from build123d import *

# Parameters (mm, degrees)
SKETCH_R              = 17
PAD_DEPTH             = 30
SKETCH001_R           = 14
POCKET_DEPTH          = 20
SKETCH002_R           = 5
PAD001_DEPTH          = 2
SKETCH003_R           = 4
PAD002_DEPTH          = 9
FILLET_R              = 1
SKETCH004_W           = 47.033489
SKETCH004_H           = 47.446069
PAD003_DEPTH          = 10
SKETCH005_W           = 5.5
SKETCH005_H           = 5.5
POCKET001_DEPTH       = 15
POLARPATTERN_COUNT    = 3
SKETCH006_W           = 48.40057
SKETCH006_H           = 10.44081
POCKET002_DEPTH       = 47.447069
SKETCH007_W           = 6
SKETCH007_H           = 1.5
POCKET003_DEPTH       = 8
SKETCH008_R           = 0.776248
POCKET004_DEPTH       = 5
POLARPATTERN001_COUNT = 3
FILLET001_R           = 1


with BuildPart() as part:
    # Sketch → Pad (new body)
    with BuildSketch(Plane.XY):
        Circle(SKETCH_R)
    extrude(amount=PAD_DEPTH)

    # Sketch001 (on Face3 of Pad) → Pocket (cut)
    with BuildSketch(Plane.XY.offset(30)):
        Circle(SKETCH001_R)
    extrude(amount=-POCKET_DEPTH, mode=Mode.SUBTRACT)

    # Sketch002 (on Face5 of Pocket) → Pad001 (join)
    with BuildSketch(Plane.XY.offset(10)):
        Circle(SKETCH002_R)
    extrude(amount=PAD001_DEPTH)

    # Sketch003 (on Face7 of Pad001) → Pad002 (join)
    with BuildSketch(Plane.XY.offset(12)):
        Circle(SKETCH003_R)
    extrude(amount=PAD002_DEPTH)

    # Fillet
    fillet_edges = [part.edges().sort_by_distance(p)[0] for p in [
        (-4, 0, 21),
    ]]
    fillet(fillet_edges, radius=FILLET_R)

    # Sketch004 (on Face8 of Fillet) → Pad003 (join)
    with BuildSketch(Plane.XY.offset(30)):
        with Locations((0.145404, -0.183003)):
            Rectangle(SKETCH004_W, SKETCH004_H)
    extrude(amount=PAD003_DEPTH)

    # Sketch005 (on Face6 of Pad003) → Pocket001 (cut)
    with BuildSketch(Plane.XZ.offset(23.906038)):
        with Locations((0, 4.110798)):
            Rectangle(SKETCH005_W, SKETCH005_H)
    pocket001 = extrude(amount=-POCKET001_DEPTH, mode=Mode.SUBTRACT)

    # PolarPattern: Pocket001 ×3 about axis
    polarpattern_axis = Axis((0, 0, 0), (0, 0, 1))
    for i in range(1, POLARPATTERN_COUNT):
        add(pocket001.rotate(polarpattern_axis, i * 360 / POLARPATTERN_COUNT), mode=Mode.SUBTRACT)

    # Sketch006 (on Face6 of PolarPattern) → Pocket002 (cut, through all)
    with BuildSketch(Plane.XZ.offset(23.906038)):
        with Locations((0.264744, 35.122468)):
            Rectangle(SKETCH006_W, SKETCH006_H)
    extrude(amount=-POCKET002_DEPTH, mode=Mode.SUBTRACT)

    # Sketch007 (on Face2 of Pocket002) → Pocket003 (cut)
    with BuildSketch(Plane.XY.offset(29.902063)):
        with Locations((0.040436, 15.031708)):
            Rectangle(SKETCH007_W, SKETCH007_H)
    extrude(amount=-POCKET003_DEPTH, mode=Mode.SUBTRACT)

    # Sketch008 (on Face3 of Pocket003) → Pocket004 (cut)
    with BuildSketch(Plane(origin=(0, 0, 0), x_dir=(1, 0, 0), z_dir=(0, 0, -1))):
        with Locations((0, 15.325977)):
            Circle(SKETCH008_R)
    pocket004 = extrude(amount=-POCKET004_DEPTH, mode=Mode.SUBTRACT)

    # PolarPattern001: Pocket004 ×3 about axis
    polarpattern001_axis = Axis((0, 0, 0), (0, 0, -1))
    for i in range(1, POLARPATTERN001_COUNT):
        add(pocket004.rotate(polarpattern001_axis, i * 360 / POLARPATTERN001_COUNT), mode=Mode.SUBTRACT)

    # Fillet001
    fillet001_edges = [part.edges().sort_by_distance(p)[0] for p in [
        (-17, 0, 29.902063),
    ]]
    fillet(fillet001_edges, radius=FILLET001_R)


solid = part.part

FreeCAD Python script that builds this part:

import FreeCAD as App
import Part
import Sketcher
Q = App.Units.Quantity


def edges_at(feature, points):
    """Names of the edges that pass closest to the given points."""
    edges = feature.Shape.Edges
    near = lambda p: min(range(len(edges)), key=lambda i: edges[i].distToShape(Part.Vertex(*p))[0])
    return sorted({f"Edge{near(p) + 1}" for p in points})

doc = App.newDocument("Part")
params = doc.addObject("Spreadsheet::Sheet", "Params")
for row, (alias, value) in enumerate([
    ("sketch1_diameter", "34 mm"),
    ("pad1_length", "30 mm"),
    ("sketch2_diameter", "28 mm"),
    ("pocket1_length", "20 mm"),
    ("sketch3_diameter", "10 mm"),
    ("pad2_length", "2 mm"),
    ("sketch4_diameter", "8 mm"),
    ("pad3_length", "9 mm"),
    ("fillet_radius", "1 mm"),
    ("pad4_length", "10 mm"),
    ("sketch6_width", "5.5 mm"),
    ("pocket2_length", "15 mm"),
    ("sketch8_width", "6 mm"),
    ("sketch8_height", "1.5 mm"),
    ("pocket4_length", "8 mm"),
    ("pocket5_length", "5 mm"),
    ("fillet2_radius", "1 mm"),
], start=1):
    params.set(f"A{row}", alias)
    params.set(f"B{row}", "=" + value)
    params.setAlias(f"B{row}", alias)

body = doc.addObject("PartDesign::Body", "Body")

# Sketch on XY plane
sketch1 = body.newObject("Sketcher::SketchObject", "Sketch")
sketch1.AttachmentSupport = (doc.getObject("XY_Plane"), [""])
sketch1.MapMode = "FlatFace"
sketch1.addGeometry(Part.Circle(App.Vector(0, 0, 0), App.Vector(0, 0, 1), 17), False)
sketch1.addConstraint([
    Sketcher.Constraint("Coincident", 0, 3, -1, 1),
    Sketcher.Constraint("Diameter", 0, Q("34 mm")),
])
sketch1.setExpression("Constraints[1]", "Params.sketch1_diameter")
pad1 = body.newObject("PartDesign::Pad", "Pad")
pad1.Profile = sketch1
pad1.setExpression("Length", "Params.pad1_length")

# Sketch on XY plane
sketch2 = body.newObject("Sketcher::SketchObject", "Sketch001")
sketch2.AttachmentSupport = (doc.getObject("XY_Plane"), [""])
sketch2.MapMode = "FlatFace"
sketch2.AttachmentOffset = App.Placement(App.Vector(0, 0, 30), App.Rotation())
sketch2.addGeometry(Part.Circle(App.Vector(0, 0, 0), App.Vector(0, 0, 1), 14), False)
sketch2.addConstraint([
    Sketcher.Constraint("Coincident", 0, 3, -1, 1),
    Sketcher.Constraint("Diameter", 0, Q("28 mm")),
])
sketch2.setExpression("Constraints[1]", "Params.sketch2_diameter")
pocket1 = body.newObject("PartDesign::Pocket", "Pocket")
pocket1.Profile = sketch2
pocket1.setExpression("Length", "Params.pocket1_length")

# Sketch on XY plane
sketch3 = body.newObject("Sketcher::SketchObject", "Sketch002")
sketch3.AttachmentSupport = (doc.getObject("XY_Plane"), [""])
sketch3.MapMode = "FlatFace"
sketch3.AttachmentOffset = App.Placement(App.Vector(0, 0, 10), App.Rotation())
sketch3.addGeometry(Part.Circle(App.Vector(0, 0, 0), App.Vector(0, 0, 1), 5), False)
sketch3.addConstraint([
    Sketcher.Constraint("Coincident", 0, 3, -1, 1),
    Sketcher.Constraint("Diameter", 0, Q("10 mm")),
])
sketch3.setExpression("Constraints[1]", "Params.sketch3_diameter")
pad2 = body.newObject("PartDesign::Pad", "Pad001")
pad2.Profile = sketch3
pad2.setExpression("Length", "Params.pad2_length")

# Sketch on XY plane
sketch4 = body.newObject("Sketcher::SketchObject", "Sketch003")
sketch4.AttachmentSupport = (doc.getObject("XY_Plane"), [""])
sketch4.MapMode = "FlatFace"
sketch4.AttachmentOffset = App.Placement(App.Vector(0, 0, 12), App.Rotation())
sketch4.addGeometry(Part.Circle(App.Vector(0, 0, 0), App.Vector(0, 0, 1), 4), False)
sketch4.addConstraint([
    Sketcher.Constraint("Coincident", 0, 3, -1, 1),
    Sketcher.Constraint("Diameter", 0, Q("8 mm")),
])
sketch4.setExpression("Constraints[1]", "Params.sketch4_diameter")
pad3 = body.newObject("PartDesign::Pad", "Pad002")
pad3.Profile = sketch4
pad3.setExpression("Length", "Params.pad3_length")
doc.recompute()

fillet = body.newObject("PartDesign::Fillet", "Fillet")
fillet.Base = (pad3, edges_at(pad3, [(-4, 0, 21)]))
fillet.setExpression("Radius", "Params.fillet_radius")

# Sketch on XY plane
sketch5 = body.newObject("Sketcher::SketchObject", "Sketch004")
sketch5.AttachmentSupport = (doc.getObject("XY_Plane"), [""])
sketch5.MapMode = "FlatFace"
sketch5.AttachmentOffset = App.Placement(App.Vector(0, 0, 30), App.Rotation())
sketch5.addGeometry([
    Part.LineSegment(App.Vector(-23.37134, 23.540032, 0), App.Vector(-23.37134, -23.906038, 0)),
    Part.LineSegment(App.Vector(-23.37134, -23.906038, 0), App.Vector(23.662149, -23.906038, 0)),
    Part.LineSegment(App.Vector(23.662149, -23.906038, 0), App.Vector(23.662149, 23.540032, 0)),
    Part.LineSegment(App.Vector(23.662149, 23.540032, 0), App.Vector(-23.37134, 23.540032, 0)),
], False)
sketch5.addConstraint([
    Sketcher.Constraint("Coincident", 0, 2, 1, 1),
    Sketcher.Constraint("Coincident", 1, 2, 2, 1),
    Sketcher.Constraint("Coincident", 2, 2, 3, 1),
    Sketcher.Constraint("Coincident", 3, 2, 0, 1),
    Sketcher.Constraint("Vertical", 0),
    Sketcher.Constraint("Horizontal", 1),
    Sketcher.Constraint("Vertical", 2),
    Sketcher.Constraint("Horizontal", 3),
    Sketcher.Constraint("DistanceX", 1, 1, 1, 2, Q("47.033489 mm")),
    Sketcher.Constraint("DistanceY", 0, 2, 0, 1, Q("47.446069 mm")),
    Sketcher.Constraint("DistanceX", 0, 2, -1, 1, Q("23.37134 mm")),
    Sketcher.Constraint("DistanceY", -1, 1, 2, 2, Q("23.540032 mm")),
])
pad4 = body.newObject("PartDesign::Pad", "Pad003")
pad4.Profile = sketch5
pad4.setExpression("Length", "Params.pad4_length")

# Sketch on XZ plane
sketch6 = body.newObject("Sketcher::SketchObject", "Sketch005")
sketch6.AttachmentSupport = (doc.getObject("XZ_Plane"), [""])
sketch6.MapMode = "FlatFace"
sketch6.AttachmentOffset = App.Placement(App.Vector(0, 0, 23.906038), App.Rotation())
sketch6.addGeometry([
    Part.LineSegment(App.Vector(-2.75, 6.860798, 0), App.Vector(-2.75, 1.360798, 0)),
    Part.LineSegment(App.Vector(-2.75, 1.360798, 0), App.Vector(2.75, 1.360798, 0)),
    Part.LineSegment(App.Vector(2.75, 1.360798, 0), App.Vector(2.75, 6.860798, 0)),
    Part.LineSegment(App.Vector(2.75, 6.860798, 0), App.Vector(-2.75, 6.860798, 0)),
], False)
sketch6.addConstraint([
    Sketcher.Constraint("Coincident", 0, 2, 1, 1),
    Sketcher.Constraint("Coincident", 1, 2, 2, 1),
    Sketcher.Constraint("Coincident", 2, 2, 3, 1),
    Sketcher.Constraint("Coincident", 3, 2, 0, 1),
    Sketcher.Constraint("Vertical", 0),
    Sketcher.Constraint("Horizontal", 1),
    Sketcher.Constraint("Vertical", 2),
    Sketcher.Constraint("Horizontal", 3),
    Sketcher.Constraint("Equal", 3, 0),
    Sketcher.Constraint("DistanceX", 1, 1, 1, 2, Q("5.5 mm")),
    Sketcher.Constraint("DistanceX", 0, 2, -1, 1, Q("2.75 mm")),
    Sketcher.Constraint("DistanceY", -1, 1, 0, 2, Q("1.360798 mm")),
])
sketch6.setExpression("Constraints[9]", "Params.sketch6_width")
pocket2 = body.newObject("PartDesign::Pocket", "Pocket001")
pocket2.Profile = sketch6
pocket2.setExpression("Length", "Params.pocket2_length")
doc.recompute()

polarpattern = body.newObject("PartDesign::PolarPattern", "PolarPattern")
polarpattern.Originals = [pocket2]
polarpattern.Axis = (doc.getObject("Z_Axis"), [""])
polarpattern.Angle = 360
polarpattern.Occurrences = 3
body.Tip = polarpattern

# Sketch on XZ plane
sketch7 = body.newObject("Sketcher::SketchObject", "Sketch006")
sketch7.AttachmentSupport = (doc.getObject("XZ_Plane"), [""])
sketch7.MapMode = "FlatFace"
sketch7.AttachmentOffset = App.Placement(App.Vector(0, 0, 23.906038), App.Rotation())
sketch7.addGeometry([
    Part.LineSegment(App.Vector(-23.935541, 40.342873, 0), App.Vector(-23.935541, 29.902063, 0)),
    Part.LineSegment(App.Vector(-23.935541, 29.902063, 0), App.Vector(24.465029, 29.902063, 0)),
    Part.LineSegment(App.Vector(24.465029, 29.902063, 0), App.Vector(24.465029, 40.342873, 0)),
    Part.LineSegment(App.Vector(24.465029, 40.342873, 0), App.Vector(-23.935541, 40.342873, 0)),
], False)
sketch7.addConstraint([
    Sketcher.Constraint("Coincident", 0, 2, 1, 1),
    Sketcher.Constraint("Coincident", 1, 2, 2, 1),
    Sketcher.Constraint("Coincident", 2, 2, 3, 1),
    Sketcher.Constraint("Coincident", 3, 2, 0, 1),
    Sketcher.Constraint("Vertical", 0),
    Sketcher.Constraint("Horizontal", 1),
    Sketcher.Constraint("Vertical", 2),
    Sketcher.Constraint("Horizontal", 3),
    Sketcher.Constraint("DistanceX", 1, 1, 1, 2, Q("48.40057 mm")),
    Sketcher.Constraint("DistanceY", 0, 2, 0, 1, Q("10.44081 mm")),
    Sketcher.Constraint("DistanceX", 0, 2, -1, 1, Q("23.935541 mm")),
    Sketcher.Constraint("DistanceY", -1, 1, 0, 2, Q("29.902063 mm")),
])
pocket3 = body.newObject("PartDesign::Pocket", "Pocket002")
pocket3.Profile = sketch7
pocket3.Type = "ThroughAll"

# Sketch on XY plane
sketch8 = body.newObject("Sketcher::SketchObject", "Sketch007")
sketch8.AttachmentSupport = (doc.getObject("XY_Plane"), [""])
sketch8.MapMode = "FlatFace"
sketch8.AttachmentOffset = App.Placement(App.Vector(0, 0, 29.902063), App.Rotation())
sketch8.addGeometry([
    Part.LineSegment(App.Vector(-2.959564, 15.781708, 0), App.Vector(-2.959564, 14.281708, 0)),
    Part.LineSegment(App.Vector(-2.959564, 14.281708, 0), App.Vector(3.040436, 14.281708, 0)),
    Part.LineSegment(App.Vector(3.040436, 14.281708, 0), App.Vector(3.040436, 15.781708, 0)),
    Part.LineSegment(App.Vector(3.040436, 15.781708, 0), App.Vector(-2.959564, 15.781708, 0)),
], False)
sketch8.addConstraint([
    Sketcher.Constraint("Coincident", 0, 2, 1, 1),
    Sketcher.Constraint("Coincident", 1, 2, 2, 1),
    Sketcher.Constraint("Coincident", 2, 2, 3, 1),
    Sketcher.Constraint("Coincident", 3, 2, 0, 1),
    Sketcher.Constraint("Vertical", 0),
    Sketcher.Constraint("Horizontal", 1),
    Sketcher.Constraint("Vertical", 2),
    Sketcher.Constraint("Horizontal", 3),
    Sketcher.Constraint("DistanceX", 1, 1, 1, 2, Q("6 mm")),
    Sketcher.Constraint("DistanceY", 0, 2, 0, 1, Q("1.5 mm")),
    Sketcher.Constraint("DistanceX", 0, 2, -1, 1, Q("2.959564 mm")),
    Sketcher.Constraint("DistanceY", -1, 1, 0, 2, Q("14.281708 mm")),
])
sketch8.setExpression("Constraints[8]", "Params.sketch8_width")
sketch8.setExpression("Constraints[9]", "Params.sketch8_height")
pocket4 = body.newObject("PartDesign::Pocket", "Pocket003")
pocket4.Profile = sketch8
pocket4.setExpression("Length", "Params.pocket4_length")

# Sketch on XY plane
sketch9 = body.newObject("Sketcher::SketchObject", "Sketch008")
sketch9.AttachmentSupport = (doc.getObject("XY_Plane"), [""])
sketch9.MapMode = "FlatFace"
sketch9.addGeometry(Part.Circle(App.Vector(0, -15.325977, 0), App.Vector(0, 0, 1), 0.776248), False)
sketch9.addConstraint([
    Sketcher.Constraint("PointOnObject", 0, 3, -2),
    Sketcher.Constraint("Diameter", 0, Q("1.552496 mm")),
    Sketcher.Constraint("DistanceY", 0, 3, -1, 1, Q("15.325977 mm")),
])
pocket5 = body.newObject("PartDesign::Pocket", "Pocket004")
pocket5.Profile = sketch9
pocket5.setExpression("Length", "Params.pocket5_length")
pocket5.Reversed = True
doc.recompute()

polarpattern2 = body.newObject("PartDesign::PolarPattern", "PolarPattern001")
polarpattern2.Originals = [pocket5]
polarpattern2.Axis = (doc.getObject("Z_Axis"), [""])
polarpattern2.Angle = 360
polarpattern2.Occurrences = 3
body.Tip = polarpattern2
doc.recompute()

fillet2 = body.newObject("PartDesign::Fillet", "Fillet001")
fillet2.Base = (polarpattern2, edges_at(polarpattern2, [(-17, 0, 29.902)]))
fillet2.setExpression("Radius", "Params.fillet2_radius")

doc.recompute()
